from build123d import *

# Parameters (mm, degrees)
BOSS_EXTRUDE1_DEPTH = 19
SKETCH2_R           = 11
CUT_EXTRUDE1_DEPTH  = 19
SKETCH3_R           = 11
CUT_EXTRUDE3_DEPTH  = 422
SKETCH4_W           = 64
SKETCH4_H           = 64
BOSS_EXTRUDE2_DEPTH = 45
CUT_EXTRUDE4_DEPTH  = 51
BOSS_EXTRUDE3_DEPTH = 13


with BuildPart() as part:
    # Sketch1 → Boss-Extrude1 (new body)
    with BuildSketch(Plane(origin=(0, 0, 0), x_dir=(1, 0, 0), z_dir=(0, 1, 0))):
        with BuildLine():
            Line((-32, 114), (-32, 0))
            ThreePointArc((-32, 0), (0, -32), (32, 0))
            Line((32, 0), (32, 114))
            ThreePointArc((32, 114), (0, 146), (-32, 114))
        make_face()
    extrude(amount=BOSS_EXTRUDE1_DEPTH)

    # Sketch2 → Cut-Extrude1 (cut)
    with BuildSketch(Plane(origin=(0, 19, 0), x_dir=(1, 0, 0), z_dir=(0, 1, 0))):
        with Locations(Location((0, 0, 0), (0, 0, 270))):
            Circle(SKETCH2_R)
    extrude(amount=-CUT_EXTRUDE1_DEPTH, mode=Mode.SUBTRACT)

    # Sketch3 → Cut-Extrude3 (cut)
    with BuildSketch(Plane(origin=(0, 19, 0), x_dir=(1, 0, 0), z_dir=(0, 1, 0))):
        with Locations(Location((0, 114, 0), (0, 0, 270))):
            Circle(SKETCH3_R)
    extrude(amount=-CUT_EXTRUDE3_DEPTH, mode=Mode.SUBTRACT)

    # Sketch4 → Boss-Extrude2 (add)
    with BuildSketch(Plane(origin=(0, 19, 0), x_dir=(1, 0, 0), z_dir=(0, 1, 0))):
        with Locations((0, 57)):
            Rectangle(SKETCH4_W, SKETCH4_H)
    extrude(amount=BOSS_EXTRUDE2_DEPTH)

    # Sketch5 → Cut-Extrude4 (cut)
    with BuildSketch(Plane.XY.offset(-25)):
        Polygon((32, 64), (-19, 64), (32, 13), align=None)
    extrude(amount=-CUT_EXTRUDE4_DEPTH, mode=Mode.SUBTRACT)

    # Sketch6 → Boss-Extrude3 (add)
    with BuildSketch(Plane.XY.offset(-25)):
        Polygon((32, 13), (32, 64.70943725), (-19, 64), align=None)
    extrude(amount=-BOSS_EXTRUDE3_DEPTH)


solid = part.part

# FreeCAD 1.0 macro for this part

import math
import FreeCAD as App
import Part
import Sketcher
from FreeCAD import Vector
Q = App.Units.Quantity

doc = App.newDocument("Part")
body = doc.addObject("PartDesign::Body", "Body")

# Sketch on XZ plane
sketch1 = body.newObject("Sketcher::SketchObject", "Sketch")
sketch1.AttachmentSupport = (doc.getObject("XZ_Plane"), [""])
sketch1.MapMode = "FlatFace"
sketch1.addGeometry(Part.LineSegment(Vector(-32, -114, 0), Vector(-32, 0, 0)), False)
sketch1.addGeometry(Part.ArcOfCircle(Part.Circle(Vector(0, 0, 0), Vector(0, 0, 1), 32), math.radians(0), math.radians(180)), False)
sketch1.addGeometry(Part.LineSegment(Vector(32, 0, 0), Vector(32, -114, 0)), False)
sketch1.addGeometry(Part.ArcOfCircle(Part.Circle(Vector(0, -114, 0), Vector(0, 0, 1), 32), math.radians(180), math.radians(360)), False)
sketch1.addConstraint(Sketcher.Constraint("Tangent", 0, 2, 1, 2))
sketch1.addConstraint(Sketcher.Constraint("Tangent", 1, 1, 2, 1))
sketch1.addConstraint(Sketcher.Constraint("Tangent", 2, 2, 3, 2))
sketch1.addConstraint(Sketcher.Constraint("Tangent", 3, 1, 0, 1))
sketch1.addConstraint(Sketcher.Constraint("Vertical", 0))
sketch1.addConstraint(Sketcher.Constraint("Vertical", 2))
sketch1.addConstraint(Sketcher.Constraint("Coincident", 1, 3, -1, 1))
sketch1.addConstraint(Sketcher.Constraint("Radius", 1, 32.0))
sketch1.addConstraint(Sketcher.Constraint("DistanceY", 0, 1, 0, 2, 114.0))
pad1 = body.newObject("PartDesign::Pad", "Pad")
pad1.Profile = sketch1
pad1.Length = 19
pad1.Reversed = True

# Sketch on XZ plane
sketch2 = body.newObject("Sketcher::SketchObject", "Sketch001")
sketch2.AttachmentSupport = (doc.getObject("XZ_Plane"), [""])
sketch2.MapMode = "FlatFace"
sketch2.AttachmentOffset = App.Placement(Vector(0, 0, -19), App.Rotation())
sketch2.addGeometry(Part.Circle(Vector(0, 0, 0), Vector(0, 0, 1), 11), False)
sketch2.addConstraint(Sketcher.Constraint("Coincident", 0, 3, -1, 1))
sketch2.addConstraint(Sketcher.Constraint("Diameter", 0, 22.0))
pocket1 = body.newObject("PartDesign::Pocket", "Pocket")
pocket1.Profile = sketch2
pocket1.Length = 19
pocket1.Reversed = True

# Sketch on XZ plane
sketch3 = body.newObject("Sketcher::SketchObject", "Sketch002")
sketch3.AttachmentSupport = (doc.getObject("XZ_Plane"), [""])
sketch3.MapMode = "FlatFace"
sketch3.AttachmentOffset = App.Placement(Vector(0, 0, -19), App.Rotation())
sketch3.addGeometry(Part.Circle(Vector(0, -114, 0), Vector(0, 0, 1), 11), False)
sketch3.addConstraint(Sketcher.Constraint("PointOnObject", 0, 3, -2))
sketch3.addConstraint(Sketcher.Constraint("Diameter", 0, 22.0))
sketch3.addConstraint(Sketcher.Constraint("DistanceY", 0, 3, -1, 1, 114.0))
pocket2 = body.newObject("PartDesign::Pocket", "Pocket001")
pocket2.Profile = sketch3
pocket2.Length = 422
pocket2.Reversed = True

# Sketch on XZ plane
sketch4 = body.newObject("Sketcher::SketchObject", "Sketch003")
sketch4.AttachmentSupport = (doc.getObject("XZ_Plane"), [""])
sketch4.MapMode = "FlatFace"
sketch4.AttachmentOffset = App.Placement(Vector(0, 0, -19), App.Rotation())
sketch4.addGeometry(Part.LineSegment(Vector(-32, -89, 0), Vector(-32, -25, 0)), False)
sketch4.addGeometry(Part.LineSegment(Vector(-32, -25, 0), Vector(32, -25, 0)), False)
sketch4.addGeometry(Part.LineSegment(Vector(32, -25, 0), Vector(32, -89, 0)), False)
sketch4.addGeometry(Part.LineSegment(Vector(32, -89, 0), Vector(-32, -89, 0)), False)
sketch4.addConstraint(Sketcher.Constraint("Coincident", 0, 2, 1, 1))
sketch4.addConstraint(Sketcher.Constraint("Coincident", 1, 2, 2, 1))
sketch4.addConstraint(Sketcher.Constraint("Coincident", 2, 2, 3, 1))
sketch4.addConstraint(Sketcher.Constraint("Coincident", 3, 2, 0, 1))
sketch4.addConstraint(Sketcher.Constraint("Vertical", 0))
sketch4.addConstraint(Sketcher.Constraint("Horizontal", 1))
sketch4.addConstraint(Sketcher.Constraint("Vertical", 2))
sketch4.addConstraint(Sketcher.Constraint("Horizontal", 3))
sketch4.addConstraint(Sketcher.Constraint("Equal", 3, 0))
sketch4.addConstraint(Sketcher.Constraint("DistanceX", 1, 1, 1, 2, 64.0))
sketch4.addConstraint(Sketcher.Constraint("DistanceX", 0, 2, -1, 1, 32.0))
sketch4.addConstraint(Sketcher.Constraint("DistanceY", 0, 2, -1, 1, 25.0))
pad2 = body.newObject("PartDesign::Pad", "Pad001")
pad2.Profile = sketch4
pad2.Length = 45
pad2.Reversed = True

# Sketch on XY plane
sketch5 = body.newObject("Sketcher::SketchObject", "Sketch004")
sketch5.AttachmentSupport = (doc.getObject("XY_Plane"), [""])
sketch5.MapMode = "FlatFace"
sketch5.AttachmentOffset = App.Placement(Vector(0, 0, -25), App.Rotation())
sketch5.addGeometry(Part.LineSegment(Vector(32, 64, 0), Vector(-19, 64, 0)), False)
sketch5.addGeometry(Part.LineSegment(Vector(-19, 64, 0), Vector(32, 13, 0)), False)
sketch5.addGeometry(Part.LineSegment(Vector(32, 13, 0), Vector(32, 64, 0)), False)
sketch5.addConstraint(Sketcher.Constraint("Coincident", 0, 2, 1, 1))
sketch5.addConstraint(Sketcher.Constraint("Coincident", 1, 2, 2, 1))
sketch5.addConstraint(Sketcher.Constraint("Coincident", 2, 2, 0, 1))
sketch5.addConstraint(Sketcher.Constraint("Horizontal", 0))
sketch5.addConstraint(Sketcher.Constraint("Vertical", 2))
sketch5.addConstraint(Sketcher.Constraint("Equal", 0, 2))
sketch5.addConstraint(Sketcher.Constraint("DistanceX", 0, 2, 0, 1, 51.0))
sketch5.addConstraint(Sketcher.Constraint("DistanceX", 0, 2, -1, 1, 19.0))
sketch5.addConstraint(Sketcher.Constraint("DistanceY", -1, 1, 0, 2, 64.0))
pocket3 = body.newObject("PartDesign::Pocket", "Pocket002")
pocket3.Profile = sketch5
pocket3.Length = 51

# Sketch on XY plane
sketch6 = body.newObject("Sketcher::SketchObject", "Sketch005")
sketch6.AttachmentSupport = (doc.getObject("XY_Plane"), [""])
sketch6.MapMode = "FlatFace"
sketch6.AttachmentOffset = App.Placement(Vector(0, 0, -25), App.Rotation())
sketch6.addGeometry(Part.LineSegment(Vector(32, 13, 0), Vector(32, 65, 0)), False)
sketch6.addGeometry(Part.LineSegment(Vector(32, 65, 0), Vector(-19, 64, 0)), False)
sketch6.addGeometry(Part.LineSegment(Vector(-19, 64, 0), Vector(32, 13, 0)), False)
sketch6.addConstraint(Sketcher.Constraint("Coincident", 0, 2, 1, 1))
sketch6.addConstraint(Sketcher.Constraint("Coincident", 1, 2, 2, 1))
sketch6.addConstraint(Sketcher.Constraint("Coincident", 2, 2, 0, 1))
sketch6.addConstraint(Sketcher.Constraint("Vertical", 0))
sketch6.addConstraint(Sketcher.Constraint("Angle", 2, Q("-45 deg")))
sketch6.addConstraint(Sketcher.Constraint("DistanceX", -1, 1, 0, 2, 32.0))
sketch6.addConstraint(Sketcher.Constraint("DistanceX", 1, 2, -1, 1, 19.0))
sketch6.addConstraint(Sketcher.Constraint("DistanceY", -1, 1, 1, 2, 64.0))
sketch6.addConstraint(Sketcher.Constraint("DistanceY", 0, 1, 0, 2, 51.709437))
pad3 = body.newObject("PartDesign::Pad", "Pad002")
pad3.Profile = sketch6
pad3.Length = 13
pad3.Reversed = True

doc.recompute()
